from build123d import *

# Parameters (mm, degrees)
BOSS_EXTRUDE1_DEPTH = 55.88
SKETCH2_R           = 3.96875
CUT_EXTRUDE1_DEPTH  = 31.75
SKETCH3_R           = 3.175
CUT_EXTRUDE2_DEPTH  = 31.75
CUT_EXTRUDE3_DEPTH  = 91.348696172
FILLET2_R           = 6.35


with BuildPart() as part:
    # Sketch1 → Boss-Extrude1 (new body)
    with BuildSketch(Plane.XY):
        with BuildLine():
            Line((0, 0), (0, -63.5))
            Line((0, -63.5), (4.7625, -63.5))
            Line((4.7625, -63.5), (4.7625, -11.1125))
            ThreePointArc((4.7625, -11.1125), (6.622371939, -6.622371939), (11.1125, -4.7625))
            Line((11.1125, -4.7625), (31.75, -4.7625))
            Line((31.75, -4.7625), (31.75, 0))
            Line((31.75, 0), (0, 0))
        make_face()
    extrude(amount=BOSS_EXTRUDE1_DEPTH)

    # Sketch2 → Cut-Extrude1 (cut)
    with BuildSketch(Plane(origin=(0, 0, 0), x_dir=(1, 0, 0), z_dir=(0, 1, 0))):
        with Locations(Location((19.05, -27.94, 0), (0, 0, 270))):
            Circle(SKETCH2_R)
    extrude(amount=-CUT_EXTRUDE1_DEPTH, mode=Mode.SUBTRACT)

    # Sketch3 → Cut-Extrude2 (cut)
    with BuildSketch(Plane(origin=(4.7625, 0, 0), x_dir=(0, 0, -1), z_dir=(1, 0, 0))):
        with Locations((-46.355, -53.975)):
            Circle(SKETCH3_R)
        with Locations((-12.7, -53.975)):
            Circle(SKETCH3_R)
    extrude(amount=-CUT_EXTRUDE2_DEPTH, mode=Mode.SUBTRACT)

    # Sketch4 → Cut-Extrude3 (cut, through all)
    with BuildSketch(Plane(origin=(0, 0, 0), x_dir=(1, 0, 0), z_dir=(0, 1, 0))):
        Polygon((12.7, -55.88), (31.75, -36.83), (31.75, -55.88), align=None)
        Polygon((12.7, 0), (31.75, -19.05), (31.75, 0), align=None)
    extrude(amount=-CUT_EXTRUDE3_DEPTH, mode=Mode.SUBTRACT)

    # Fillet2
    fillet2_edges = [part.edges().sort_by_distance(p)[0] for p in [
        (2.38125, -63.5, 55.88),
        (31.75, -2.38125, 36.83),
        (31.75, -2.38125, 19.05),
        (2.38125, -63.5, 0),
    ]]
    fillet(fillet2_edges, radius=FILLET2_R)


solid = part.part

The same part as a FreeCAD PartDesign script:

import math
import FreeCAD as App
import Part
import Sketcher

V = App.Vector
Q = App.Units.Quantity


def edges_at(feature, points):
    """Names of the edges that pass closest to the given points."""
    edges = feature.Shape.Edges
    near = lambda p: min(range(len(edges)), key=lambda i: edges[i].distToShape(Part.Vertex(*p))[0])
    return sorted({f"Edge{near(p) + 1}" for p in points})


def add_polygon(sketch, points):
    """Adds a closed chain of lines whose ends are joined by coincident constraints."""
    first, n = sketch.GeometryCount, len(points)
    for a, b in zip(points, points[1:] + points[:1]):
        sketch.addGeometry(Part.LineSegment(App.Vector(*a, 0), App.Vector(*b, 0)), False)
    for i in range(n):
        sketch.addConstraint(Sketcher.Constraint("Coincident", first + i, 2, first + (i + 1) % n, 1))

doc = App.newDocument("Part")
body = doc.addObject("PartDesign::Body", "Body")

sketch1 = body.newObject("Sketcher::SketchObject", "Sketch")
sketch1.AttachmentSupport = (doc.getObject("XY_Plane"), [""])
sketch1.MapMode = "FlatFace"
sketch1.addGeometry(Part.LineSegment(V(0, 0, 0), V(0, -63.5, 0)), False)
sketch1.addGeometry(Part.LineSegment(V(0, -63.5, 0), V(4.8, -63.5, 0)), False)
sketch1.addGeometry(Part.LineSegment(V(4.8, -63.5, 0), V(4.8, -11.1, 0)), False)
sketch1.addGeometry(Part.ArcOfCircle(Part.Circle(V(11.1, -11.1, 0), V(0, 0, 1), 6.3), math.radians(90), math.radians(180)), False)
sketch1.addGeometry(Part.LineSegment(V(11.1, -4.8, 0), V(31.8, -4.8, 0)), False)
sketch1.addGeometry(Part.LineSegment(V(31.8, -4.8, 0), V(31.8, 0, 0)), False)
sketch1.addGeometry(Part.LineSegment(V(31.8, 0, 0), V(0, 0, 0)), False)
sketch1.addConstraint(Sketcher.Constraint("Coincident", 0, 2, 1, 1))
sketch1.addConstraint(Sketcher.Constraint("Coincident", 1, 2, 2, 1))
sketch1.addConstraint(Sketcher.Constraint("Tangent", 2, 2, 3, 2))
sketch1.addConstraint(Sketcher.Constraint("Tangent", 3, 1, 4, 1))
sketch1.addConstraint(Sketcher.Constraint("Coincident", 4, 2, 5, 1))
sketch1.addConstraint(Sketcher.Constraint("Coincident", 5, 2, 6, 1))
sketch1.addConstraint(Sketcher.Constraint("Coincident", 6, 2, 0, 1))
sketch1.addConstraint(Sketcher.Constraint("Vertical", 0))
sketch1.addConstraint(Sketcher.Constraint("Horizontal", 1))
sketch1.addConstraint(Sketcher.Constraint("Vertical", 2))
sketch1.addConstraint(Sketcher.Constraint("Horizontal", 4))
sketch1.addConstraint(Sketcher.Constraint("Vertical", 5))
sketch1.addConstraint(Sketcher.Constraint("Horizontal", 6))
sketch1.addConstraint(Sketcher.Constraint("Coincident", 6, 2, -1, 1))
sketch1.addConstraint(Sketcher.Constraint("Equal", 1, 5))
sketch1.addConstraint(Sketcher.Constraint("Radius", 3, Q("0.25 in")))
sketch1.addConstraint(Sketcher.Constraint("DistanceY", 0, 2, 0, 1, Q("2.5 in")))
sketch1.addConstraint(Sketcher.Constraint("DistanceX", 6, 2, 6, 1, Q("1.25 in")))
sketch1.addConstraint(Sketcher.Constraint("DistanceX", 1, 1, 1, 2, Q("0.1875 in")))
pad1 = body.newObject("PartDesign::Pad", "Pad")
pad1.Profile = sketch1
pad1.Length = Q("2.2 in")

sketch2 = body.newObject("Sketcher::SketchObject", "Sketch001")
sketch2.AttachmentSupport = (doc.getObject("XZ_Plane"), [""])
sketch2.MapMode = "FlatFace"
sketch2.addGeometry(Part.Circle(V(19.1, 27.9, 0), V(0, 0, 1), 4), False)
sketch2.addConstraint(Sketcher.Constraint("Diameter", 0, Q("0.3125 in")))
sketch2.addConstraint(Sketcher.Constraint("DistanceY", -1, 1, 0, 3, Q("1.1 in")))
sketch2.addConstraint(Sketcher.Constraint("DistanceX", -1, 1, 0, 3, Q("0.75 in")))
pocket1 = body.newObject("PartDesign::Pocket", "Pocket")
pocket1.Profile = sketch2
pocket1.Length = Q("1.25 in")
pocket1.Reversed = True

sketch3 = body.newObject("Sketcher::SketchObject", "Sketch002")
sketch3.AttachmentSupport = (doc.getObject("YZ_Plane"), [""])
sketch3.MapMode = "FlatFace"
sketch3.AttachmentOffset = App.Placement(V(0, 0, 0.1875 * 25.4), App.Rotation())
sketch3.addGeometry(Part.Circle(V(-54, 46.4, 0), V(0, 0, 1), 3.2), False)
sketch3.addGeometry(Part.Circle(V(-54, 12.7, 0), V(0, 0, 1), 3.2), False)
sketch3.addConstraint(Sketcher.Constraint("Equal", 0, 1))
sketch3.addConstraint(Sketcher.Constraint("Vertical", 0, 3, 1, 3))
sketch3.addConstraint(Sketcher.Constraint("Diameter", 0, Q("0.25 in")))
sketch3.addConstraint(Sketcher.Constraint("DistanceY", -1, 1, 1, 3, Q("0.5 in")))
sketch3.addConstraint(Sketcher.Constraint("DistanceX", 0, 3, -1, 1, Q("2.125 in")))
sketch3.addConstraint(Sketcher.Constraint("DistanceY", -1, 1, 0, 3, Q("1.825 in")))
pocket2 = body.newObject("PartDesign::Pocket", "Pocket001")
pocket2.Profile = sketch3
pocket2.Length = Q("1.25 in")

sketch4 = body.newObject("Sketcher::SketchObject", "Sketch003")
sketch4.AttachmentSupport = (doc.getObject("XZ_Plane"), [""])
sketch4.MapMode = "FlatFace"
add_polygon(sketch4, [(32, 37), (13, 56), (32, 56)])
add_polygon(sketch4, [(13, 0), (32, 19), (32, 0)])
sketch4.addConstraint(Sketcher.Constraint("Horizontal", 1))
sketch4.addConstraint(Sketcher.Constraint("Vertical", 2))
sketch4.addConstraint(Sketcher.Constraint("Vertical", 4))
sketch4.addConstraint(Sketcher.Constraint("Horizontal", 5))
sketch4.addConstraint(Sketcher.Constraint("PointOnObject", 4, 2, -1))
sketch4.addConstraint(Sketcher.Constraint("Perpendicular", 0, 3))
sketch4.addConstraint(Sketcher.Constraint("Vertical", 2, 2, 3, 2))
sketch4.addConstraint(Sketcher.Constraint("Vertical", 0, 2, 5, 2))
sketch4.addConstraint(Sketcher.Constraint("Equal", 5, 2))
sketch4.addConstraint(Sketcher.Constraint("DistanceX", 1, 1, 1, 2, Q("0.75 in")))
sketch4.addConstraint(Sketcher.Constraint("DistanceX", -1, 1, 0, 2, Q("0.5 in")))
sketch4.addConstraint(Sketcher.Constraint("DistanceY", -1, 1, 0, 2, Q("2.2 in")))
pocket3 = body.newObject("PartDesign::Pocket", "Pocket002")
pocket3.Profile = sketch4
pocket3.Type = "ThroughAll"
pocket3.Reversed = True
doc.recompute()

fillet = body.newObject("PartDesign::Fillet", "Fillet")
fillet.Base = (pocket3, edges_at(pocket3, [
    (2.381, -63.5, 55.88),
    (31.75, -2.381, 36.83),
    (31.75, -2.381, 19.05),
    (2.381, -63.5, 0),
]))
fillet.Radius = Q("0.25 in")

doc.recompute()
